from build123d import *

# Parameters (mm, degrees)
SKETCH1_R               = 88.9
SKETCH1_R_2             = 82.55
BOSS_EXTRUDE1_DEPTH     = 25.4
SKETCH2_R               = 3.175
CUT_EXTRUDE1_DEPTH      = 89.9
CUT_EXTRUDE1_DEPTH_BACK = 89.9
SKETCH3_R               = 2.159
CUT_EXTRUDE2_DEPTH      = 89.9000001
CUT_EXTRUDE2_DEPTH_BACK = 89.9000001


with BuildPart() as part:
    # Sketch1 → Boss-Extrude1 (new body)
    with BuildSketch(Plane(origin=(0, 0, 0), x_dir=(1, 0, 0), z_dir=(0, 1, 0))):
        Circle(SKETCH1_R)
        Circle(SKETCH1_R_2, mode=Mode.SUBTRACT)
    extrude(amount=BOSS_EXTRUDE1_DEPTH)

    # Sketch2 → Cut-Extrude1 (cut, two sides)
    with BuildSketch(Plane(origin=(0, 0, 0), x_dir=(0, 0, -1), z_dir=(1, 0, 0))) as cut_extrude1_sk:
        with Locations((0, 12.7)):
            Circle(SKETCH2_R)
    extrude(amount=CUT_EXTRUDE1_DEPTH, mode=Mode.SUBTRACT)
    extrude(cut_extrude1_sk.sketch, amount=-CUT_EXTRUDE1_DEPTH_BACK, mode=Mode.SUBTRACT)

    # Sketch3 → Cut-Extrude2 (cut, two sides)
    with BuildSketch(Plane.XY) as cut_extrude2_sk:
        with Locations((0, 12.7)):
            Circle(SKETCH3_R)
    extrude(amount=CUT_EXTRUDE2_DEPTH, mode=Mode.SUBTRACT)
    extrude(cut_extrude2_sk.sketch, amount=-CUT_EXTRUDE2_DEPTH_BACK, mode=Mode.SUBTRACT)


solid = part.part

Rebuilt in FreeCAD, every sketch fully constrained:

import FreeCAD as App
import Part
import Sketcher
from FreeCAD import Vector
Q = App.Units.Quantity

doc = App.newDocument("Part")
body = doc.addObject("PartDesign::Body", "Body")

# Sketch on XZ plane
sketch1 = body.newObject("Sketcher::SketchObject", "Sketch")
sketch1.AttachmentSupport = (doc.getObject("XZ_Plane"), [""])
sketch1.MapMode = "FlatFace"
sketch1.addGeometry([
    Part.Circle(Vector(0, 0, 0), Vector(0, 0, 1), 89),
    Part.Circle(Vector(0, 0, 0), Vector(0, 0, 1), 83),
], False)
sketch1.addConstraint([
    Sketcher.Constraint("Coincident", 0, 3, -1, 1),
    Sketcher.Constraint("Coincident", 1, 3, -1, 1),
    Sketcher.Constraint("Diameter", 0, Q("7 in")),
    Sketcher.Constraint("Diameter", 1, Q("6.5 in")),
])
pad1 = body.newObject("PartDesign::Pad", "Pad")
pad1.Profile = sketch1
pad1.Length = Q("1 in")
pad1.Reversed = True

# Sketch on YZ plane
sketch2 = body.newObject("Sketcher::SketchObject", "Sketch001")
sketch2.AttachmentSupport = (doc.getObject("YZ_Plane"), [""])
sketch2.MapMode = "FlatFace"
sketch2.addGeometry(Part.Circle(Vector(12.7, 0, 0), Vector(0, 0, 1), 3.2), False)
sketch2.addConstraint([
    Sketcher.Constraint("PointOnObject", 0, 3, -1),
    Sketcher.Constraint("Diameter", 0, Q("0.25 in")),
    Sketcher.Constraint("DistanceX", -1, 1, 0, 3, Q("0.5 in")),
])
pocket1 = body.newObject("PartDesign::Pocket", "Pocket")
pocket1.Profile = sketch2
pocket1.Type = "ThroughAll"
pocket1.Midplane = True

# Sketch on XY plane
sketch3 = body.newObject("Sketcher::SketchObject", "Sketch002")
sketch3.AttachmentSupport = (doc.getObject("XY_Plane"), [""])
sketch3.MapMode = "FlatFace"
sketch3.addGeometry(Part.Circle(Vector(0, 12.7, 0), Vector(0, 0, 1), 2.2), False)
sketch3.addConstraint([
    Sketcher.Constraint("PointOnObject", 0, 3, -2),
    Sketcher.Constraint("Diameter", 0, Q("0.17 in")),
    Sketcher.Constraint("DistanceY", -1, 1, 0, 3, Q("0.5 in")),
])
pocket2 = body.newObject("PartDesign::Pocket", "Pocket001")
pocket2.Profile = sketch3
pocket2.Type = "ThroughAll"
pocket2.Midplane = True

doc.recompute()
